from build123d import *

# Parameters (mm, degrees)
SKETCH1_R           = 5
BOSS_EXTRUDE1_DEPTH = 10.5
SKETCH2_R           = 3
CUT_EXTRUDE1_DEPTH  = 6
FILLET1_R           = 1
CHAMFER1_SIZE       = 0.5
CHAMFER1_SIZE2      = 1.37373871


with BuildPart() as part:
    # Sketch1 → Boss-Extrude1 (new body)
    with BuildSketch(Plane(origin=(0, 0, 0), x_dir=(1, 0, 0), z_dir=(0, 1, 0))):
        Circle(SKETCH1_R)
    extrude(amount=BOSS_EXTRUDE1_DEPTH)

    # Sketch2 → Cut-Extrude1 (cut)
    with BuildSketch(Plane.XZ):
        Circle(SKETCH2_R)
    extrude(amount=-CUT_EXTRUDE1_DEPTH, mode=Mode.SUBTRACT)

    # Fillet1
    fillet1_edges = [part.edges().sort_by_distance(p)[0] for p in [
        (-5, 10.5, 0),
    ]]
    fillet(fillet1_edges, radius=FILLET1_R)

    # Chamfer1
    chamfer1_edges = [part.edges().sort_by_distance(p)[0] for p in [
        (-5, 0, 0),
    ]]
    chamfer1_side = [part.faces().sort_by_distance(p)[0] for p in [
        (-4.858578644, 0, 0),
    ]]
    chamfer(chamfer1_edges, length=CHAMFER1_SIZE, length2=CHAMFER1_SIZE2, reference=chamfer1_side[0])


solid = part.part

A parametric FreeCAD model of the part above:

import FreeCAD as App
import Part
import Sketcher


def edges_at(feature, points):
    """Names of the edges that pass closest to the given points."""
    edges = feature.Shape.Edges
    near = lambda p: min(range(len(edges)), key=lambda i: edges[i].distToShape(Part.Vertex(*p))[0])
    return sorted({f"Edge{near(p) + 1}" for p in points})

doc = App.newDocument("Part")
body = doc.addObject("PartDesign::Body", "Body")

sketch1 = body.newObject("Sketcher::SketchObject", "Sketch")
sketch1.AttachmentSupport = (doc.getObject("XZ_Plane"), [""])
sketch1.MapMode = "FlatFace"
sketch1.addGeometry(Part.Circle(App.Vector(0, 0, 0), App.Vector(0, 0, 1), 5), False)
sketch1.addConstraint([
    Sketcher.Constraint("Coincident", 0, 3, -1, 1),
    Sketcher.Constraint("Diameter", 0, 10.0),
])
pad1 = body.newObject("PartDesign::Pad", "Pad")
pad1.Profile = sketch1
pad1.Length = 10.5
pad1.Reversed = True

sketch2 = body.newObject("Sketcher::SketchObject", "Sketch001")
sketch2.AttachmentSupport = (doc.getObject("XZ_Plane"), [""])
sketch2.MapMode = "FlatFace"
sketch2.addGeometry(Part.Circle(App.Vector(0, 0, 0), App.Vector(0, 0, 1), 3), False)
sketch2.addConstraint([
    Sketcher.Constraint("Coincident", 0, 3, -1, 1),
    Sketcher.Constraint("Diameter", 0, 6.0),
])
pocket1 = body.newObject("PartDesign::Pocket", "Pocket")
pocket1.Profile = sketch2
pocket1.Length = 6
doc.recompute()

fillet = body.newObject("PartDesign::Fillet", "Fillet")
fillet.Base = (pocket1, edges_at(pocket1, [(-5, 10.5, 0)]))
fillet.Radius = 1
doc.recompute()

chamfer = body.newObject("PartDesign::Chamfer", "Chamfer")
chamfer.Base = (fillet, edges_at(fillet, [(-5, 0, 0)]))
chamfer.ChamferType = "Two distances"
chamfer.Size = 0.5
chamfer.Size2 = 1.373739
chamfer.FlipDirection = True

doc.recompute()
